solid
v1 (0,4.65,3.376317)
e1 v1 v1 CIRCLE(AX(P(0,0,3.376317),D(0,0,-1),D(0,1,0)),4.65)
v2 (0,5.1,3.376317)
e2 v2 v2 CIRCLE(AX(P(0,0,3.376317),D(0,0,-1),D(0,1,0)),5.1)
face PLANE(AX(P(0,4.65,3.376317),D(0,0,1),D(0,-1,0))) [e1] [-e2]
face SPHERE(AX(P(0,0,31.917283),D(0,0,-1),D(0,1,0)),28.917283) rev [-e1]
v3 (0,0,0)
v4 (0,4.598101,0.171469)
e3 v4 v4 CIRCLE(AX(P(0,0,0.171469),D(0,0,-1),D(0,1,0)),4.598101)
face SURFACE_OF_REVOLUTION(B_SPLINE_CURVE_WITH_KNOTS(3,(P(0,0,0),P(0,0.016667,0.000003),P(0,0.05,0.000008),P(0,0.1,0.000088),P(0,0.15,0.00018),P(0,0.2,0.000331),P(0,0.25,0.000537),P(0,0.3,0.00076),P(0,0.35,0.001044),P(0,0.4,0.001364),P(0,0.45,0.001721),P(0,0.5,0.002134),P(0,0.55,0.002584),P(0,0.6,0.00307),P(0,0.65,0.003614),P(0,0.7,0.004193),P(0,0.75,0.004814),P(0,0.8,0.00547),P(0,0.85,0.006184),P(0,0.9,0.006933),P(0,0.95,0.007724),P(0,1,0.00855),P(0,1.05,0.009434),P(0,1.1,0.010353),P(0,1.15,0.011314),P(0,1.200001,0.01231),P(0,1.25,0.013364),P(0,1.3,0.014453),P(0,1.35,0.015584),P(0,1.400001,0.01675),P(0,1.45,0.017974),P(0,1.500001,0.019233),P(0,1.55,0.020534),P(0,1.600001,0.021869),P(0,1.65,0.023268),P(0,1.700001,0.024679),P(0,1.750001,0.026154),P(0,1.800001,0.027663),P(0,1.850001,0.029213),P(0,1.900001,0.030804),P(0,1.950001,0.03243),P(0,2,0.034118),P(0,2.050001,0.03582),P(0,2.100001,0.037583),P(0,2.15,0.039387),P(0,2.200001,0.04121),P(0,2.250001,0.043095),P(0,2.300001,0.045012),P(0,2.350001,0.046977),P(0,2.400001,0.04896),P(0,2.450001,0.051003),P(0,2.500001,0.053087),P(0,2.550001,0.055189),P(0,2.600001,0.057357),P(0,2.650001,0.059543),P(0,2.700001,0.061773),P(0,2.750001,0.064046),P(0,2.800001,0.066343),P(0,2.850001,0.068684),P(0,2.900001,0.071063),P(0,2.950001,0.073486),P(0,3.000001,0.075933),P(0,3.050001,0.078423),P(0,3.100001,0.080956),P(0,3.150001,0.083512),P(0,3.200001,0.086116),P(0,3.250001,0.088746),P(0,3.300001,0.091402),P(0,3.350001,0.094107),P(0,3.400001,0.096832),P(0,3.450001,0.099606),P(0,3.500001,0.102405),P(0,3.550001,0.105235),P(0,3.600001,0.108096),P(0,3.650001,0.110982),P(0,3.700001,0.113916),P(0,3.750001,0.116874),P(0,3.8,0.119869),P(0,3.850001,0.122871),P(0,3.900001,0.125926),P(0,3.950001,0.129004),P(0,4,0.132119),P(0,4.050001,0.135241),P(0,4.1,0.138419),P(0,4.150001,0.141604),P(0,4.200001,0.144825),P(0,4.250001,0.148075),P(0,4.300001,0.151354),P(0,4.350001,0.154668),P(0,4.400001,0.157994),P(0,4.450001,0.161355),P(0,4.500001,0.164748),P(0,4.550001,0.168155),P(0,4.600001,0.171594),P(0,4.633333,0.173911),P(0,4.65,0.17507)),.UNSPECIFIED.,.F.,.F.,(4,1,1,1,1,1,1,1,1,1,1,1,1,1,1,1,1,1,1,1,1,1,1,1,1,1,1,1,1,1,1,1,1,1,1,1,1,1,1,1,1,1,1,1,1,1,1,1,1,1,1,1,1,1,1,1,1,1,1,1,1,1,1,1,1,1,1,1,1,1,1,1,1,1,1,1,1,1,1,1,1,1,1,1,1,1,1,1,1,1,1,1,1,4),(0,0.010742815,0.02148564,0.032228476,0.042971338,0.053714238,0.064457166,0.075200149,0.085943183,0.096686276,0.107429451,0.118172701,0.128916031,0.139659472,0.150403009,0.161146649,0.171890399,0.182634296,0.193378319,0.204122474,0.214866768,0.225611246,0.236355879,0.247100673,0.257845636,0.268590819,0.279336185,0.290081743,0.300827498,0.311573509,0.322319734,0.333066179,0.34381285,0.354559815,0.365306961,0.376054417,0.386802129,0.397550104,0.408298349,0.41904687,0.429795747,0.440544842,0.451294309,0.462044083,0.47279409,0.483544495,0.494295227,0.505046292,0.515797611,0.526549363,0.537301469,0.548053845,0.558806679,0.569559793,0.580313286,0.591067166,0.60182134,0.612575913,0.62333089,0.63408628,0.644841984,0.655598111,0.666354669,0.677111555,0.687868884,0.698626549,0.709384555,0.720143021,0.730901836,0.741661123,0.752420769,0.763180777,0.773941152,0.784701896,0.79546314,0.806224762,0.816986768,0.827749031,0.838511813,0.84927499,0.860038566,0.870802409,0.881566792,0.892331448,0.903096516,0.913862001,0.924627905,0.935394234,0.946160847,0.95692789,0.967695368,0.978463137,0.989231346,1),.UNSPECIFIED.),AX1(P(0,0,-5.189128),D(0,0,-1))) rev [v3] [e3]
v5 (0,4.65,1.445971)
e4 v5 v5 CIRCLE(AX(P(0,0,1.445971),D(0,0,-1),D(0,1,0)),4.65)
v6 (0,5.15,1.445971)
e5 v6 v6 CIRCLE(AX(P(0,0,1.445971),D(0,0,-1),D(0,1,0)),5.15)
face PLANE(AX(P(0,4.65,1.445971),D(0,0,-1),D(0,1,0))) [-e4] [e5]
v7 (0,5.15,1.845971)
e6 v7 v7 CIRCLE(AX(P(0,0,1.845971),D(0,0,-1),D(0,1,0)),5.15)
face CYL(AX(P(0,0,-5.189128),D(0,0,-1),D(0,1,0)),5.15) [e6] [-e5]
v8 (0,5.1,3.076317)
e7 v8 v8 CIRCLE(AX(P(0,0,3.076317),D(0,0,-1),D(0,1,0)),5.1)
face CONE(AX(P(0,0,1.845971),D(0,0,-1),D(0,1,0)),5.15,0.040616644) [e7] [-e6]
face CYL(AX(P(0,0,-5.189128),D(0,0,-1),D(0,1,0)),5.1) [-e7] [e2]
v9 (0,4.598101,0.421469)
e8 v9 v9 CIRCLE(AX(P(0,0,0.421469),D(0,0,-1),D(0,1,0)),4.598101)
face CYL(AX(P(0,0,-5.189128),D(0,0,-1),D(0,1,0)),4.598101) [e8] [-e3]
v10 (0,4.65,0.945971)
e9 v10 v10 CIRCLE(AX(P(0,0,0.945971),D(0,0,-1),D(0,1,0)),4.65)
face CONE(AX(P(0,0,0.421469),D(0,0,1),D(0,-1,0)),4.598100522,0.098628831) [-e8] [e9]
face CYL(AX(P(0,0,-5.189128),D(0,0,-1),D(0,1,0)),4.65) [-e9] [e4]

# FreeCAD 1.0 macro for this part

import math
import FreeCAD as App
import Part
import Sketcher

doc = App.newDocument("Part")
body = doc.addObject("PartDesign::Body", "Body")

# Sketch on YZ plane
sketch1 = doc.addObject("Sketcher::SketchObject", "Sketch")
body.addObject(sketch1)
sketch1.AttachmentSupport = (doc.YZ_Plane, [""])
sketch1.MapMode = "FlatFace"
sketch1.addGeometry([
    Part.LineSegment(App.Vector(4.65, 1.445971, 0), App.Vector(5.15, 1.445971, 0)),  # 0
    Part.LineSegment(App.Vector(5.15, 1.445971, 0), App.Vector(5.15, 1.845971, 0)),  # 1
    Part.LineSegment(App.Vector(5.15, 1.845971, 0), App.Vector(5.1, 3.076317, 0)),  # 2
    Part.LineSegment(App.Vector(5.1, 3.076317, 0), App.Vector(5.1, 3.376317, 0)),  # 3
    Part.LineSegment(App.Vector(5.1, 3.376317, 0), App.Vector(4.65, 3.376317, 0)),  # 4
    Part.ArcOfCircle(Part.Circle(App.Vector(0, 31.917283, 0), App.Vector(0, 0, 1), 28.917283), math.radians(-90), math.radians(-80.746463)),  # 5
    Part.LineSegment(App.Vector(0, 3, 0), App.Vector(0, 0, 0)),  # 6
    Part.BSplineCurve([App.Vector(0, 0, 0), App.Vector(0.016667, 0.000003, 0), App.Vector(0.05, 0.000008, 0), App.Vector(0.1, 0.000088, 0), App.Vector(0.15, 0.00018, 0), App.Vector(0.2, 0.000331, 0), App.Vector(0.25, 0.000537, 0), App.Vector(0.3, 0.00076, 0), App.Vector(0.35, 0.001044, 0), App.Vector(0.4, 0.001364, 0), App.Vector(0.45, 0.001721, 0), App.Vector(0.5, 0.002134, 0), App.Vector(0.55, 0.002584, 0), App.Vector(0.6, 0.00307, 0), App.Vector(0.65, 0.003614, 0), App.Vector(0.7, 0.004193, 0), App.Vector(0.75, 0.004814, 0), App.Vector(0.8, 0.00547, 0), App.Vector(0.85, 0.006184, 0), App.Vector(0.9, 0.006933, 0), App.Vector(0.95, 0.007724, 0), App.Vector(1, 0.00855, 0), App.Vector(1.05, 0.009434, 0), App.Vector(1.1, 0.010353, 0), App.Vector(1.15, 0.011314, 0), App.Vector(1.200001, 0.01231, 0), App.Vector(1.25, 0.013364, 0), App.Vector(1.3, 0.014453, 0), App.Vector(1.35, 0.015584, 0), App.Vector(1.400001, 0.01675, 0), App.Vector(1.45, 0.017974, 0), App.Vector(1.500001, 0.019233, 0), App.Vector(1.55, 0.020534, 0), App.Vector(1.600001, 0.021869, 0), App.Vector(1.65, 0.023268, 0), App.Vector(1.700001, 0.024679, 0), App.Vector(1.750001, 0.026154, 0), App.Vector(1.800001, 0.027663, 0), App.Vector(1.850001, 0.029213, 0), App.Vector(1.900001, 0.030804, 0), App.Vector(1.950001, 0.03243, 0), App.Vector(2, 0.034118, 0), App.Vector(2.050001, 0.03582, 0), App.Vector(2.100001, 0.037583, 0), App.Vector(2.15, 0.039387, 0), App.Vector(2.200001, 0.04121, 0), App.Vector(2.250001, 0.043095, 0), App.Vector(2.300001, 0.045012, 0), App.Vector(2.350001, 0.046977, 0), App.Vector(2.400001, 0.04896, 0), App.Vector(2.450001, 0.051003, 0), App.Vector(2.500001, 0.053087, 0), App.Vector(2.550001, 0.055189, 0), App.Vector(2.600001, 0.057357, 0), App.Vector(2.650001, 0.059543, 0), App.Vector(2.700001, 0.061773, 0), App.Vector(2.750001, 0.064046, 0), App.Vector(2.800001, 0.066343, 0), App.Vector(2.850001, 0.068684, 0), App.Vector(2.900001, 0.071063, 0), App.Vector(2.950001, 0.073486, 0), App.Vector(3.000001, 0.075933, 0), App.Vector(3.050001, 0.078423, 0), App.Vector(3.100001, 0.080956, 0), App.Vector(3.150001, 0.083512, 0), App.Vector(3.200001, 0.086116, 0), App.Vector(3.250001, 0.088746, 0), App.Vector(3.300001, 0.091402, 0), App.Vector(3.350001, 0.094107, 0), App.Vector(3.400001, 0.096832, 0), App.Vector(3.450001, 0.099606, 0), App.Vector(3.500001, 0.102405, 0), App.Vector(3.550001, 0.105235, 0), App.Vector(3.600001, 0.108096, 0), App.Vector(3.650001, 0.110982, 0), App.Vector(3.700001, 0.113916, 0), App.Vector(3.750001, 0.116874, 0), App.Vector(3.8, 0.119869, 0), App.Vector(3.850001, 0.122871, 0), App.Vector(3.900001, 0.125926, 0), App.Vector(3.950001, 0.129004, 0), App.Vector(4, 0.132119, 0), App.Vector(4.050001, 0.135241, 0), App.Vector(4.1, 0.138419, 0), App.Vector(4.150001, 0.141604, 0), App.Vector(4.200001, 0.144825, 0), App.Vector(4.250001, 0.148075, 0), App.Vector(4.300001, 0.151354, 0), App.Vector(4.350001, 0.154668, 0), App.Vector(4.400001, 0.157994, 0), App.Vector(4.450001, 0.161355, 0), App.Vector(4.500001, 0.164748, 0), App.Vector(4.549368, 0.168112, 0), App.Vector(4.582067, 0.17036, 0), App.Vector(4.598101, 0.171469, 0)], [4, 1, 1, 1, 1, 1, 1, 1, 1, 1, 1, 1, 1, 1, 1, 1, 1, 1, 1, 1, 1, 1, 1, 1, 1, 1, 1, 1, 1, 1, 1, 1, 1, 1, 1, 1, 1, 1, 1, 1, 1, 1, 1, 1, 1, 1, 1, 1, 1, 1, 1, 1, 1, 1, 1, 1, 1, 1, 1, 1, 1, 1, 1, 1, 1, 1, 1, 1, 1, 1, 1, 1, 1, 1, 1, 1, 1, 1, 1, 1, 1, 1, 1, 1, 1, 1, 1, 1, 1, 1, 1, 1, 4], [0, 0.010742815, 0.02148564, 0.032228476, 0.042971338, 0.053714238, 0.064457166, 0.075200149, 0.085943183, 0.096686276, 0.107429451, 0.118172701, 0.128916031, 0.139659472, 0.150403009, 0.161146649, 0.171890399, 0.182634296, 0.193378319, 0.204122474, 0.214866768, 0.225611246, 0.236355879, 0.247100673, 0.257845636, 0.268590819, 0.279336185, 0.290081743, 0.300827498, 0.311573509, 0.322319734, 0.333066179, 0.34381285, 0.354559815, 0.365306961, 0.376054417, 0.386802129, 0.397550104, 0.408298349, 0.41904687, 0.429795747, 0.440544842, 0.451294309, 0.462044083, 0.47279409, 0.483544495, 0.494295227, 0.505046292, 0.515797611, 0.526549363, 0.537301469, 0.548053845, 0.558806679, 0.569559793, 0.580313286, 0.591067166, 0.60182134, 0.612575913, 0.62333089, 0.63408628, 0.644841984, 0.655598111, 0.666354669, 0.677111555, 0.687868884, 0.698626549, 0.709384555, 0.720143021, 0.730901836, 0.741661123, 0.752420769, 0.763180777, 0.773941152, 0.784701896, 0.79546314, 0.806224762, 0.816986768, 0.827749031, 0.838511813, 0.84927499, 0.860038566, 0.870802409, 0.881566792, 0.892331448, 0.903096516, 0.913862001, 0.924627905, 0.935394234, 0.946160847, 0.95692789, 0.967695368, 0.978463137, 0.988822257], False, 3, [1, 1, 1, 1, 1, 1, 1, 1, 1, 1, 1, 1, 1, 1, 1, 1, 1, 1, 1, 1, 1, 1, 1, 1, 1, 1, 1, 1, 1, 1, 1, 1, 1, 1, 1, 1, 1, 1, 1, 1, 1, 1, 1, 1, 1, 1, 1, 1, 1, 1, 1, 1, 1, 1, 1, 1, 1, 1, 1, 1, 1, 1, 1, 1, 1, 1, 1, 1, 1, 1, 1, 1, 1, 1, 1, 1, 1, 1, 1, 1, 1, 1, 1, 1, 1, 1, 1, 1, 1, 1, 1, 1, 1, 1, 1], False),  # 7
    Part.LineSegment(App.Vector(4.598101, 0.171469, 0), App.Vector(4.598101, 0.421469, 0)),  # 8
    Part.LineSegment(App.Vector(4.598101, 0.421469, 0), App.Vector(4.65, 0.945971, 0)),  # 9
    Part.LineSegment(App.Vector(4.65, 0.945971, 0), App.Vector(4.65, 1.445971, 0)),  # 10
], False)
sketch1.addConstraint([
    Sketcher.Constraint("Block", 7),
    Sketcher.Constraint("Coincident", 0, 2, 1, 1),
    Sketcher.Constraint("Coincident", 1, 2, 2, 1),
    Sketcher.Constraint("Coincident", 2, 2, 3, 1),
    Sketcher.Constraint("Coincident", 3, 2, 4, 1),
    Sketcher.Constraint("Coincident", 4, 2, 5, 2),
    Sketcher.Constraint("Coincident", 5, 1, 6, 1),
    Sketcher.Constraint("Coincident", 6, 2, 7, 1),
    Sketcher.Constraint("Coincident", 7, 2, 8, 1),
    Sketcher.Constraint("Coincident", 8, 2, 9, 1),
    Sketcher.Constraint("Coincident", 9, 2, 10, 1),
    Sketcher.Constraint("Coincident", 10, 2, 0, 1),
    Sketcher.Constraint("Horizontal", 0),
    Sketcher.Constraint("Vertical", 1),
    Sketcher.Constraint("Vertical", 3),
    Sketcher.Constraint("Horizontal", 4),
    Sketcher.Constraint("Vertical", 6),
    Sketcher.Constraint("Vertical", 8),
    Sketcher.Constraint("Vertical", 10),
    Sketcher.Constraint("PointOnObject", 5, 3, -2),
    Sketcher.Constraint("Vertical", 4, 2, 9, 2),
    Sketcher.Constraint("Equal", 0, 10),
    Sketcher.Constraint("DistanceY", 6, 2, 6, 1, 3.0),
    Sketcher.Constraint("DistanceX", 0, 1, 0, 2, 0.5),
    Sketcher.Constraint("DistanceY", 1, 1, 1, 2, 0.4),
    Sketcher.Constraint("DistanceY", 3, 1, 3, 2, 0.3),
    Sketcher.Constraint("DistanceX", 4, 2, 4, 1, 0.45),
    Sketcher.Constraint("DistanceY", 8, 1, 8, 2, 0.25),
    Sketcher.Constraint("DistanceX", -1, 1, 2, 2, 5.1),
    Sketcher.Constraint("Radius", 5, 28.917283),
    Sketcher.Constraint("Distance", 2, 1.231361),
])
revolution = doc.addObject("PartDesign::Revolution", "Revolution")
body.addObject(revolution)
revolution.Profile = sketch1
revolution.ReferenceAxis = (sketch1, ["V_Axis"])
revolution.Angle = 360

doc.recompute()
